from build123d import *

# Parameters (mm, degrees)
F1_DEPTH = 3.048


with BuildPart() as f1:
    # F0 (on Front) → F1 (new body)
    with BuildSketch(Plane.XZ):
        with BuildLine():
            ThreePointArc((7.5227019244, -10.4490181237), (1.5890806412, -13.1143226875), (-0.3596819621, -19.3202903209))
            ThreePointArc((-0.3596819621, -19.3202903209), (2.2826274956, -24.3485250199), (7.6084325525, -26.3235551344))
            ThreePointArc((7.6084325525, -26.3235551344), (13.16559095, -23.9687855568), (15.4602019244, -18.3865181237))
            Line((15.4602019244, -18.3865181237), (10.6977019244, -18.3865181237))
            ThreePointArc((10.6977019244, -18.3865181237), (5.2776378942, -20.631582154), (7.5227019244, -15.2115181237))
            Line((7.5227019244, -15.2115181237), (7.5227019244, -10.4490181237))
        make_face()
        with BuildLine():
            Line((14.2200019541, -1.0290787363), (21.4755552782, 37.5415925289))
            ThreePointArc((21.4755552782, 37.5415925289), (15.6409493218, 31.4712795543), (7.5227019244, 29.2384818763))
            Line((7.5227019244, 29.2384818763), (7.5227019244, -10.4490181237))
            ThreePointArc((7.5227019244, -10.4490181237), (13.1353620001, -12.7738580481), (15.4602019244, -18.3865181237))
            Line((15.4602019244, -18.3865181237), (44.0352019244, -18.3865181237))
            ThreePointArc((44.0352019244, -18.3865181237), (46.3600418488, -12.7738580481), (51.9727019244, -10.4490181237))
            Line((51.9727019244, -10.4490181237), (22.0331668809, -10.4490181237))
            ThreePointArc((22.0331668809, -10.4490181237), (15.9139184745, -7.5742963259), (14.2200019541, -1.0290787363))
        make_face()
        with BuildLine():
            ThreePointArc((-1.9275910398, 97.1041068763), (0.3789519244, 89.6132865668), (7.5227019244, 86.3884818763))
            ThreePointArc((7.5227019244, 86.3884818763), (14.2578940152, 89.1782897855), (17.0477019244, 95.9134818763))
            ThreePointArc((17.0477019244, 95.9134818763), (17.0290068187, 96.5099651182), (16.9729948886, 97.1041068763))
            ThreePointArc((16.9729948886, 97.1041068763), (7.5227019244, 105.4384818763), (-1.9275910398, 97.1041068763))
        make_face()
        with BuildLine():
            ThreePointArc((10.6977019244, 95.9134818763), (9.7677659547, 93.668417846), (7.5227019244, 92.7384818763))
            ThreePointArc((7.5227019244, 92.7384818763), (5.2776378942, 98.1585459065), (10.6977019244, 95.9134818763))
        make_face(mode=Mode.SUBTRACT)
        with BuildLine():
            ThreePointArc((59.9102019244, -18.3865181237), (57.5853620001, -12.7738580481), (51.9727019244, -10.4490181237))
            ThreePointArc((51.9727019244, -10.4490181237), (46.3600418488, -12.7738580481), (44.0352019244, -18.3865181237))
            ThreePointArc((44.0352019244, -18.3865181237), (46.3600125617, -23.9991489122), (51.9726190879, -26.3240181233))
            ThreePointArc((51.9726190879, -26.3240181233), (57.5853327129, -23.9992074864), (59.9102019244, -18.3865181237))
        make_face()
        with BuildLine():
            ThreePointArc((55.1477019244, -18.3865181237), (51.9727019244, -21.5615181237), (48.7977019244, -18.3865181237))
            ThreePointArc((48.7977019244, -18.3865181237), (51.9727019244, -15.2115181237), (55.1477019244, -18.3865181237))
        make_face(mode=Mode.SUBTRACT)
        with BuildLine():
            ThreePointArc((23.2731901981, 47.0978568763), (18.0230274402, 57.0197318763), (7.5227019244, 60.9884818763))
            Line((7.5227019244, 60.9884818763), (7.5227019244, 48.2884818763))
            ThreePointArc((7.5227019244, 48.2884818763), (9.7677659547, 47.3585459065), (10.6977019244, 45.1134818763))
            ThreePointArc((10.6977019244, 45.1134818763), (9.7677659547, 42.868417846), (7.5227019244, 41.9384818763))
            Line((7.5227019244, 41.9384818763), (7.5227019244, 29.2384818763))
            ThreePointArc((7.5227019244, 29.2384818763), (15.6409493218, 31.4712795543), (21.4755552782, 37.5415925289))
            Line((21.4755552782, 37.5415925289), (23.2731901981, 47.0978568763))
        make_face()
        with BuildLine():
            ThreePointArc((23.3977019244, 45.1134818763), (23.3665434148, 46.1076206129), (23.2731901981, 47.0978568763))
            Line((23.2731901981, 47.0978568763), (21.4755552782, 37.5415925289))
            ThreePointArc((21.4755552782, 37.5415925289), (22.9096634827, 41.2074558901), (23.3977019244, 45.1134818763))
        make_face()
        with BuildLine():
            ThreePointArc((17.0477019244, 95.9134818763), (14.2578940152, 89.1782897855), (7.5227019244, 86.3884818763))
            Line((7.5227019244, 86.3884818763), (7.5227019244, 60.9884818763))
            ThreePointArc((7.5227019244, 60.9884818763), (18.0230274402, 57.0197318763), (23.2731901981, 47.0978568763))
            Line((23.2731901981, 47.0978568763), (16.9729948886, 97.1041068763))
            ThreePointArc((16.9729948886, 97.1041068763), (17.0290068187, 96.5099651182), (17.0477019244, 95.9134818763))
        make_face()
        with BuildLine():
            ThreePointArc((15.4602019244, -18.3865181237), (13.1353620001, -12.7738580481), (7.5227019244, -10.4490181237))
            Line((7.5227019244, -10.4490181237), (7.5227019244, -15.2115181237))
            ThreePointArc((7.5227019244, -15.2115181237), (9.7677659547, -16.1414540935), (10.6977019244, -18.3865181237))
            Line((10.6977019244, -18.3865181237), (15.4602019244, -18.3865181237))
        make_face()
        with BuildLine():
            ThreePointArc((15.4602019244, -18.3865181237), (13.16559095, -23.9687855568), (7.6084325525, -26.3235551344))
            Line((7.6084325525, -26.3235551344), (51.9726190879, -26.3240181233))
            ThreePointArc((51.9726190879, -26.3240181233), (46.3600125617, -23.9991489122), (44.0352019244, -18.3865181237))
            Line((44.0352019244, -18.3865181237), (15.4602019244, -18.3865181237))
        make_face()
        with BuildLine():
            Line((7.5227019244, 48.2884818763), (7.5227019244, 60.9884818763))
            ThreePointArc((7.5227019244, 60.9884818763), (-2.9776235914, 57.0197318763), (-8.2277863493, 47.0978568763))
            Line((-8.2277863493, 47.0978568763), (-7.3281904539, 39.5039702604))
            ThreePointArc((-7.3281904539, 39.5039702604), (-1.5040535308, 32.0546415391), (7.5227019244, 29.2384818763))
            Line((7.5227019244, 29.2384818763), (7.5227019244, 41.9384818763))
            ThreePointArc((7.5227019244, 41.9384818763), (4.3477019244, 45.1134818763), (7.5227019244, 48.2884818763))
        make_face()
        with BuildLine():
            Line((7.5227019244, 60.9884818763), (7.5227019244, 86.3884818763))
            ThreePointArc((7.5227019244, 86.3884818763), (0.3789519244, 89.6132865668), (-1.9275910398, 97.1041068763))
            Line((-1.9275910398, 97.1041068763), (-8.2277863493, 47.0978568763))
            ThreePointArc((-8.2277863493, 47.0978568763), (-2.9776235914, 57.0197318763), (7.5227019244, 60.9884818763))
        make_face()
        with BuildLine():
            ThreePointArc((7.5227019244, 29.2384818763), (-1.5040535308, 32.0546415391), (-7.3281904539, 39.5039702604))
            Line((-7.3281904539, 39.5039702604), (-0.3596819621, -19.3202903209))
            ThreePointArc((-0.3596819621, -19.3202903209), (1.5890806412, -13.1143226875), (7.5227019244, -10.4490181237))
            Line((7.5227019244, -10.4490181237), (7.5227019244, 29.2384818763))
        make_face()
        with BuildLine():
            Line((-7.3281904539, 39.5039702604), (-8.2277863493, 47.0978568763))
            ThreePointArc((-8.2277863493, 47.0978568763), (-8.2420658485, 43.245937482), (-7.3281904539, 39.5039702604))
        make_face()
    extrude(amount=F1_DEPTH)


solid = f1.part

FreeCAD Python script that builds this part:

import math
import FreeCAD as App
import Part
import Sketcher
Q = App.Units.Quantity

doc = App.newDocument("Part")
body = doc.addObject("PartDesign::Body", "Body")

sketch1 = doc.addObject("Sketcher::SketchObject", "Sketch")
body.addObject(sketch1)
sketch1.AttachmentSupport = (doc.XZ_Plane, [""])
sketch1.MapMode = "FlatFace"
sketch1.addGeometry(Part.ArcOfCircle(Part.Circle(App.Vector(7.5, -18.4, 0), App.Vector(0, 0, 1), 7.9), math.radians(-173), math.radians(-89)), False)
sketch1.addGeometry(Part.LineSegment(App.Vector(7.6, -26.3, 0), App.Vector(52, -26.3, 0)), False)
sketch1.addGeometry(Part.ArcOfCircle(Part.Circle(App.Vector(52, -18.4, 0), App.Vector(0, 0, 1), 7.9), math.radians(-90), math.radians(0)), False)
sketch1.addGeometry(Part.ArcOfCircle(Part.Circle(App.Vector(52, -18.4, 0), App.Vector(0, 0, 1), 7.9), math.radians(0), math.radians(90)), False)
sketch1.addGeometry(Part.LineSegment(App.Vector(52, -10.4, 0), App.Vector(22, -10.4, 0)), False)
sketch1.addGeometry(Part.ArcOfCircle(Part.Circle(App.Vector(22, -2.5, 0), App.Vector(0, 0, 1), 8), math.radians(169), math.radians(270)), False)
sketch1.addGeometry(Part.LineSegment(App.Vector(14.2, -1, 0), App.Vector(21.5, 37.5, 0)), False)
sketch1.addGeometry(Part.ArcOfCircle(Part.Circle(App.Vector(7.5, 45.1, 0), App.Vector(0, 0, 1), 15.9), math.radians(-28), math.radians(0)), False)
sketch1.addGeometry(Part.ArcOfCircle(Part.Circle(App.Vector(7.5, 45.1, 0), App.Vector(0, 0, 1), 15.9), math.radians(0), math.radians(7.18)), False)
sketch1.addGeometry(Part.LineSegment(App.Vector(23.3, 47.1, 0), App.Vector(17, 97.1, 0)), False)
sketch1.addGeometry(Part.ArcOfCircle(Part.Circle(App.Vector(7.5, 95.9, 0), App.Vector(0, 0, 1), 9.5), math.radians(7), math.radians(173)), False)
sketch1.addGeometry(Part.LineSegment(App.Vector(-1.9, 97.1, 0), App.Vector(-8.2, 47.1, 0)), False)
sketch1.addGeometry(Part.ArcOfCircle(Part.Circle(App.Vector(7.5, 45.1, 0), App.Vector(0, 0, 1), 15.9), math.radians(173), math.radians(201)), False)
sketch1.addGeometry(Part.LineSegment(App.Vector(-7.3, 39.5, 0), App.Vector(-0.4, -19.3, 0)), False)
sketch1.addGeometry(Part.ArcOfCircle(Part.Circle(App.Vector(7.5, 45.1, 0), App.Vector(0, 0, 1), 3.2), math.radians(0), math.radians(90)), False)
sketch1.addGeometry(Part.ArcOfCircle(Part.Circle(App.Vector(7.5, 45.1, 0), App.Vector(0, 0, 1), 3.2), math.radians(-90), math.radians(0)), False)
sketch1.addGeometry(Part.ArcOfCircle(Part.Circle(App.Vector(7.5, 45.1, 0), App.Vector(0, 0, 1), 3.2), math.radians(90), math.radians(270)), False)
sketch1.addGeometry(Part.ArcOfCircle(Part.Circle(App.Vector(7.5, -18.4, 0), App.Vector(0, 0, 1), 3.2), math.radians(90), math.radians(360)), False)
sketch1.addGeometry(Part.ArcOfCircle(Part.Circle(App.Vector(7.5, -18.4, 0), App.Vector(0, 0, 1), 3.2), math.radians(0), math.radians(90)), False)
sketch1.addGeometry(Part.ArcOfCircle(Part.Circle(App.Vector(7.5, 95.9, 0), App.Vector(0, 0, 1), 3.2), math.radians(0), math.radians(270)), False)
sketch1.addGeometry(Part.ArcOfCircle(Part.Circle(App.Vector(7.5, 95.9, 0), App.Vector(0, 0, 1), 3.2), math.radians(-90), math.radians(0)), False)
sketch1.addGeometry(Part.Circle(App.Vector(52, -18.4, 0), App.Vector(0, 0, 1), 3.2), False)
sketch1.addConstraint(Sketcher.Constraint("Coincident", 0, 2, 1, 1))
sketch1.addConstraint(Sketcher.Constraint("Tangent", 1, 2, 2, 1))
sketch1.addConstraint(Sketcher.Constraint("Tangent", 2, 2, 3, 1))
sketch1.addConstraint(Sketcher.Constraint("Tangent", 3, 2, 4, 1))
sketch1.addConstraint(Sketcher.Constraint("Tangent", 4, 2, 5, 2))
sketch1.addConstraint(Sketcher.Constraint("Tangent", 5, 1, 6, 1))
sketch1.addConstraint(Sketcher.Constraint("Coincident", 6, 2, 7, 1))
sketch1.addConstraint(Sketcher.Constraint("Tangent", 7, 2, 8, 1))
sketch1.addConstraint(Sketcher.Constraint("Tangent", 8, 2, 9, 1))
sketch1.addConstraint(Sketcher.Constraint("Tangent", 9, 2, 10, 1))
sketch1.addConstraint(Sketcher.Constraint("Tangent", 10, 2, 11, 1))
sketch1.addConstraint(Sketcher.Constraint("Tangent", 11, 2, 12, 1))
sketch1.addConstraint(Sketcher.Constraint("Coincident", 12, 2, 13, 1))
sketch1.addConstraint(Sketcher.Constraint("Tangent", 13, 2, 0, 1))
sketch1.addConstraint(Sketcher.Constraint("Tangent", 14, 1, 15, 2))
sketch1.addConstraint(Sketcher.Constraint("Tangent", 15, 1, 16, 2))
sketch1.addConstraint(Sketcher.Constraint("Tangent", 16, 1, 14, 2))
sketch1.addConstraint(Sketcher.Constraint("Tangent", 17, 1, 18, 2))
sketch1.addConstraint(Sketcher.Constraint("Coincident", 18, 1, 17, 2))
sketch1.addConstraint(Sketcher.Constraint("Tangent", 19, 1, 20, 2))
sketch1.addConstraint(Sketcher.Constraint("Coincident", 20, 1, 19, 2))
sketch1.addConstraint(Sketcher.Constraint("Horizontal", 4))
sketch1.addConstraint(Sketcher.Constraint("Coincident", 12, 3, 7, 3))
sketch1.addConstraint(Sketcher.Constraint("Coincident", 14, 3, 7, 3))
sketch1.addConstraint(Sketcher.Constraint("Coincident", 17, 3, 0, 3))
sketch1.addConstraint(Sketcher.Constraint("Coincident", 19, 3, 10, 3))
sketch1.addConstraint(Sketcher.Constraint("Coincident", 21, 3, 2, 3))
sketch1.addConstraint(Sketcher.Constraint("Equal", 0, 2))
sketch1.addConstraint(Sketcher.Constraint("Equal", 2, 3))
sketch1.addConstraint(Sketcher.Constraint("Equal", 7, 8))
sketch1.addConstraint(Sketcher.Constraint("Equal", 8, 12))
sketch1.addConstraint(Sketcher.Constraint("Equal", 16, 17))
sketch1.addConstraint(Sketcher.Constraint("Equal", 18, 19))
sketch1.addConstraint(Sketcher.Constraint("Equal", 20, 21))
sketch1.addConstraint(Sketcher.Constraint("Horizontal", 0, 3, 2, 3))
sketch1.addConstraint(Sketcher.Constraint("Horizontal", 21, 3, 2, 2))
sketch1.addConstraint(Sketcher.Constraint("Horizontal", 16, 3, 7, 2))
sketch1.addConstraint(Sketcher.Constraint("Horizontal", 9, 2, 10, 2))
sketch1.addConstraint(Sketcher.Constraint("Horizontal", 7, 2, 14, 1))
sketch1.addConstraint(Sketcher.Constraint("Horizontal", 2, 2, 18, 1))
sketch1.addConstraint(Sketcher.Constraint("Horizontal", 20, 3, 19, 1))
sketch1.addConstraint(Sketcher.Constraint("Vertical", 0, 3, 7, 3))
sketch1.addConstraint(Sketcher.Constraint("Vertical", 20, 3, 15, 1))
sketch1.addConstraint(Sketcher.Constraint("Vertical", 15, 1, 16, 1))
sketch1.addConstraint(Sketcher.Constraint("Vertical", 16, 1, 17, 1))
sketch1.addConstraint(Sketcher.Constraint("Vertical", 17, 1, 20, 1))
sketch1.addConstraint(Sketcher.Constraint("Diameter", 21, Q("0.25 in")))
sketch1.addConstraint(Sketcher.Constraint("Radius", 0, Q("0.3125 in")))
sketch1.addConstraint(Sketcher.Constraint("Radius", 5, Q("0.313 in")))
sketch1.addConstraint(Sketcher.Constraint("Radius", 7, Q("0.625 in")))
sketch1.addConstraint(Sketcher.Constraint("Radius", 10, Q("0.375 in")))
sketch1.addConstraint(Sketcher.Constraint("DistanceY", 8, 3, 10, 3, Q("2 in")))
sketch1.addConstraint(Sketcher.Constraint("DistanceY", 0, 3, 7, 3, Q("2.5 in")))
sketch1.addConstraint(Sketcher.Constraint("DistanceX", 0, 3, 2, 3, Q("1.75 in")))
sketch1.addConstraint(Sketcher.Constraint("DistanceX", -1, 1, 0, 3, Q("7.522702 mm")))
sketch1.addConstraint(Sketcher.Constraint("DistanceX", -1, 1, 5, 1, Q("14.220002 mm")))
sketch1.addConstraint(Sketcher.Constraint("Distance", 13, Q("59.235578 mm")))
sketch1.addConstraint(Sketcher.Constraint("DistanceX", 4, 2, 4, 1, Q("29.939535 mm")))
sketch1.addConstraint(Sketcher.Constraint("DistanceY", 0, 3, -1, 1, Q("18.386518 mm")))
sketch1.addConstraint(Sketcher.Constraint("DistanceX", 0, 3, 0, 2, Q("0.085731 mm")))
pad1 = doc.addObject("PartDesign::Pad", "Pad")
body.addObject(pad1)
pad1.Profile = sketch1
pad1.Length = Q("0.12 in")

doc.recompute()
